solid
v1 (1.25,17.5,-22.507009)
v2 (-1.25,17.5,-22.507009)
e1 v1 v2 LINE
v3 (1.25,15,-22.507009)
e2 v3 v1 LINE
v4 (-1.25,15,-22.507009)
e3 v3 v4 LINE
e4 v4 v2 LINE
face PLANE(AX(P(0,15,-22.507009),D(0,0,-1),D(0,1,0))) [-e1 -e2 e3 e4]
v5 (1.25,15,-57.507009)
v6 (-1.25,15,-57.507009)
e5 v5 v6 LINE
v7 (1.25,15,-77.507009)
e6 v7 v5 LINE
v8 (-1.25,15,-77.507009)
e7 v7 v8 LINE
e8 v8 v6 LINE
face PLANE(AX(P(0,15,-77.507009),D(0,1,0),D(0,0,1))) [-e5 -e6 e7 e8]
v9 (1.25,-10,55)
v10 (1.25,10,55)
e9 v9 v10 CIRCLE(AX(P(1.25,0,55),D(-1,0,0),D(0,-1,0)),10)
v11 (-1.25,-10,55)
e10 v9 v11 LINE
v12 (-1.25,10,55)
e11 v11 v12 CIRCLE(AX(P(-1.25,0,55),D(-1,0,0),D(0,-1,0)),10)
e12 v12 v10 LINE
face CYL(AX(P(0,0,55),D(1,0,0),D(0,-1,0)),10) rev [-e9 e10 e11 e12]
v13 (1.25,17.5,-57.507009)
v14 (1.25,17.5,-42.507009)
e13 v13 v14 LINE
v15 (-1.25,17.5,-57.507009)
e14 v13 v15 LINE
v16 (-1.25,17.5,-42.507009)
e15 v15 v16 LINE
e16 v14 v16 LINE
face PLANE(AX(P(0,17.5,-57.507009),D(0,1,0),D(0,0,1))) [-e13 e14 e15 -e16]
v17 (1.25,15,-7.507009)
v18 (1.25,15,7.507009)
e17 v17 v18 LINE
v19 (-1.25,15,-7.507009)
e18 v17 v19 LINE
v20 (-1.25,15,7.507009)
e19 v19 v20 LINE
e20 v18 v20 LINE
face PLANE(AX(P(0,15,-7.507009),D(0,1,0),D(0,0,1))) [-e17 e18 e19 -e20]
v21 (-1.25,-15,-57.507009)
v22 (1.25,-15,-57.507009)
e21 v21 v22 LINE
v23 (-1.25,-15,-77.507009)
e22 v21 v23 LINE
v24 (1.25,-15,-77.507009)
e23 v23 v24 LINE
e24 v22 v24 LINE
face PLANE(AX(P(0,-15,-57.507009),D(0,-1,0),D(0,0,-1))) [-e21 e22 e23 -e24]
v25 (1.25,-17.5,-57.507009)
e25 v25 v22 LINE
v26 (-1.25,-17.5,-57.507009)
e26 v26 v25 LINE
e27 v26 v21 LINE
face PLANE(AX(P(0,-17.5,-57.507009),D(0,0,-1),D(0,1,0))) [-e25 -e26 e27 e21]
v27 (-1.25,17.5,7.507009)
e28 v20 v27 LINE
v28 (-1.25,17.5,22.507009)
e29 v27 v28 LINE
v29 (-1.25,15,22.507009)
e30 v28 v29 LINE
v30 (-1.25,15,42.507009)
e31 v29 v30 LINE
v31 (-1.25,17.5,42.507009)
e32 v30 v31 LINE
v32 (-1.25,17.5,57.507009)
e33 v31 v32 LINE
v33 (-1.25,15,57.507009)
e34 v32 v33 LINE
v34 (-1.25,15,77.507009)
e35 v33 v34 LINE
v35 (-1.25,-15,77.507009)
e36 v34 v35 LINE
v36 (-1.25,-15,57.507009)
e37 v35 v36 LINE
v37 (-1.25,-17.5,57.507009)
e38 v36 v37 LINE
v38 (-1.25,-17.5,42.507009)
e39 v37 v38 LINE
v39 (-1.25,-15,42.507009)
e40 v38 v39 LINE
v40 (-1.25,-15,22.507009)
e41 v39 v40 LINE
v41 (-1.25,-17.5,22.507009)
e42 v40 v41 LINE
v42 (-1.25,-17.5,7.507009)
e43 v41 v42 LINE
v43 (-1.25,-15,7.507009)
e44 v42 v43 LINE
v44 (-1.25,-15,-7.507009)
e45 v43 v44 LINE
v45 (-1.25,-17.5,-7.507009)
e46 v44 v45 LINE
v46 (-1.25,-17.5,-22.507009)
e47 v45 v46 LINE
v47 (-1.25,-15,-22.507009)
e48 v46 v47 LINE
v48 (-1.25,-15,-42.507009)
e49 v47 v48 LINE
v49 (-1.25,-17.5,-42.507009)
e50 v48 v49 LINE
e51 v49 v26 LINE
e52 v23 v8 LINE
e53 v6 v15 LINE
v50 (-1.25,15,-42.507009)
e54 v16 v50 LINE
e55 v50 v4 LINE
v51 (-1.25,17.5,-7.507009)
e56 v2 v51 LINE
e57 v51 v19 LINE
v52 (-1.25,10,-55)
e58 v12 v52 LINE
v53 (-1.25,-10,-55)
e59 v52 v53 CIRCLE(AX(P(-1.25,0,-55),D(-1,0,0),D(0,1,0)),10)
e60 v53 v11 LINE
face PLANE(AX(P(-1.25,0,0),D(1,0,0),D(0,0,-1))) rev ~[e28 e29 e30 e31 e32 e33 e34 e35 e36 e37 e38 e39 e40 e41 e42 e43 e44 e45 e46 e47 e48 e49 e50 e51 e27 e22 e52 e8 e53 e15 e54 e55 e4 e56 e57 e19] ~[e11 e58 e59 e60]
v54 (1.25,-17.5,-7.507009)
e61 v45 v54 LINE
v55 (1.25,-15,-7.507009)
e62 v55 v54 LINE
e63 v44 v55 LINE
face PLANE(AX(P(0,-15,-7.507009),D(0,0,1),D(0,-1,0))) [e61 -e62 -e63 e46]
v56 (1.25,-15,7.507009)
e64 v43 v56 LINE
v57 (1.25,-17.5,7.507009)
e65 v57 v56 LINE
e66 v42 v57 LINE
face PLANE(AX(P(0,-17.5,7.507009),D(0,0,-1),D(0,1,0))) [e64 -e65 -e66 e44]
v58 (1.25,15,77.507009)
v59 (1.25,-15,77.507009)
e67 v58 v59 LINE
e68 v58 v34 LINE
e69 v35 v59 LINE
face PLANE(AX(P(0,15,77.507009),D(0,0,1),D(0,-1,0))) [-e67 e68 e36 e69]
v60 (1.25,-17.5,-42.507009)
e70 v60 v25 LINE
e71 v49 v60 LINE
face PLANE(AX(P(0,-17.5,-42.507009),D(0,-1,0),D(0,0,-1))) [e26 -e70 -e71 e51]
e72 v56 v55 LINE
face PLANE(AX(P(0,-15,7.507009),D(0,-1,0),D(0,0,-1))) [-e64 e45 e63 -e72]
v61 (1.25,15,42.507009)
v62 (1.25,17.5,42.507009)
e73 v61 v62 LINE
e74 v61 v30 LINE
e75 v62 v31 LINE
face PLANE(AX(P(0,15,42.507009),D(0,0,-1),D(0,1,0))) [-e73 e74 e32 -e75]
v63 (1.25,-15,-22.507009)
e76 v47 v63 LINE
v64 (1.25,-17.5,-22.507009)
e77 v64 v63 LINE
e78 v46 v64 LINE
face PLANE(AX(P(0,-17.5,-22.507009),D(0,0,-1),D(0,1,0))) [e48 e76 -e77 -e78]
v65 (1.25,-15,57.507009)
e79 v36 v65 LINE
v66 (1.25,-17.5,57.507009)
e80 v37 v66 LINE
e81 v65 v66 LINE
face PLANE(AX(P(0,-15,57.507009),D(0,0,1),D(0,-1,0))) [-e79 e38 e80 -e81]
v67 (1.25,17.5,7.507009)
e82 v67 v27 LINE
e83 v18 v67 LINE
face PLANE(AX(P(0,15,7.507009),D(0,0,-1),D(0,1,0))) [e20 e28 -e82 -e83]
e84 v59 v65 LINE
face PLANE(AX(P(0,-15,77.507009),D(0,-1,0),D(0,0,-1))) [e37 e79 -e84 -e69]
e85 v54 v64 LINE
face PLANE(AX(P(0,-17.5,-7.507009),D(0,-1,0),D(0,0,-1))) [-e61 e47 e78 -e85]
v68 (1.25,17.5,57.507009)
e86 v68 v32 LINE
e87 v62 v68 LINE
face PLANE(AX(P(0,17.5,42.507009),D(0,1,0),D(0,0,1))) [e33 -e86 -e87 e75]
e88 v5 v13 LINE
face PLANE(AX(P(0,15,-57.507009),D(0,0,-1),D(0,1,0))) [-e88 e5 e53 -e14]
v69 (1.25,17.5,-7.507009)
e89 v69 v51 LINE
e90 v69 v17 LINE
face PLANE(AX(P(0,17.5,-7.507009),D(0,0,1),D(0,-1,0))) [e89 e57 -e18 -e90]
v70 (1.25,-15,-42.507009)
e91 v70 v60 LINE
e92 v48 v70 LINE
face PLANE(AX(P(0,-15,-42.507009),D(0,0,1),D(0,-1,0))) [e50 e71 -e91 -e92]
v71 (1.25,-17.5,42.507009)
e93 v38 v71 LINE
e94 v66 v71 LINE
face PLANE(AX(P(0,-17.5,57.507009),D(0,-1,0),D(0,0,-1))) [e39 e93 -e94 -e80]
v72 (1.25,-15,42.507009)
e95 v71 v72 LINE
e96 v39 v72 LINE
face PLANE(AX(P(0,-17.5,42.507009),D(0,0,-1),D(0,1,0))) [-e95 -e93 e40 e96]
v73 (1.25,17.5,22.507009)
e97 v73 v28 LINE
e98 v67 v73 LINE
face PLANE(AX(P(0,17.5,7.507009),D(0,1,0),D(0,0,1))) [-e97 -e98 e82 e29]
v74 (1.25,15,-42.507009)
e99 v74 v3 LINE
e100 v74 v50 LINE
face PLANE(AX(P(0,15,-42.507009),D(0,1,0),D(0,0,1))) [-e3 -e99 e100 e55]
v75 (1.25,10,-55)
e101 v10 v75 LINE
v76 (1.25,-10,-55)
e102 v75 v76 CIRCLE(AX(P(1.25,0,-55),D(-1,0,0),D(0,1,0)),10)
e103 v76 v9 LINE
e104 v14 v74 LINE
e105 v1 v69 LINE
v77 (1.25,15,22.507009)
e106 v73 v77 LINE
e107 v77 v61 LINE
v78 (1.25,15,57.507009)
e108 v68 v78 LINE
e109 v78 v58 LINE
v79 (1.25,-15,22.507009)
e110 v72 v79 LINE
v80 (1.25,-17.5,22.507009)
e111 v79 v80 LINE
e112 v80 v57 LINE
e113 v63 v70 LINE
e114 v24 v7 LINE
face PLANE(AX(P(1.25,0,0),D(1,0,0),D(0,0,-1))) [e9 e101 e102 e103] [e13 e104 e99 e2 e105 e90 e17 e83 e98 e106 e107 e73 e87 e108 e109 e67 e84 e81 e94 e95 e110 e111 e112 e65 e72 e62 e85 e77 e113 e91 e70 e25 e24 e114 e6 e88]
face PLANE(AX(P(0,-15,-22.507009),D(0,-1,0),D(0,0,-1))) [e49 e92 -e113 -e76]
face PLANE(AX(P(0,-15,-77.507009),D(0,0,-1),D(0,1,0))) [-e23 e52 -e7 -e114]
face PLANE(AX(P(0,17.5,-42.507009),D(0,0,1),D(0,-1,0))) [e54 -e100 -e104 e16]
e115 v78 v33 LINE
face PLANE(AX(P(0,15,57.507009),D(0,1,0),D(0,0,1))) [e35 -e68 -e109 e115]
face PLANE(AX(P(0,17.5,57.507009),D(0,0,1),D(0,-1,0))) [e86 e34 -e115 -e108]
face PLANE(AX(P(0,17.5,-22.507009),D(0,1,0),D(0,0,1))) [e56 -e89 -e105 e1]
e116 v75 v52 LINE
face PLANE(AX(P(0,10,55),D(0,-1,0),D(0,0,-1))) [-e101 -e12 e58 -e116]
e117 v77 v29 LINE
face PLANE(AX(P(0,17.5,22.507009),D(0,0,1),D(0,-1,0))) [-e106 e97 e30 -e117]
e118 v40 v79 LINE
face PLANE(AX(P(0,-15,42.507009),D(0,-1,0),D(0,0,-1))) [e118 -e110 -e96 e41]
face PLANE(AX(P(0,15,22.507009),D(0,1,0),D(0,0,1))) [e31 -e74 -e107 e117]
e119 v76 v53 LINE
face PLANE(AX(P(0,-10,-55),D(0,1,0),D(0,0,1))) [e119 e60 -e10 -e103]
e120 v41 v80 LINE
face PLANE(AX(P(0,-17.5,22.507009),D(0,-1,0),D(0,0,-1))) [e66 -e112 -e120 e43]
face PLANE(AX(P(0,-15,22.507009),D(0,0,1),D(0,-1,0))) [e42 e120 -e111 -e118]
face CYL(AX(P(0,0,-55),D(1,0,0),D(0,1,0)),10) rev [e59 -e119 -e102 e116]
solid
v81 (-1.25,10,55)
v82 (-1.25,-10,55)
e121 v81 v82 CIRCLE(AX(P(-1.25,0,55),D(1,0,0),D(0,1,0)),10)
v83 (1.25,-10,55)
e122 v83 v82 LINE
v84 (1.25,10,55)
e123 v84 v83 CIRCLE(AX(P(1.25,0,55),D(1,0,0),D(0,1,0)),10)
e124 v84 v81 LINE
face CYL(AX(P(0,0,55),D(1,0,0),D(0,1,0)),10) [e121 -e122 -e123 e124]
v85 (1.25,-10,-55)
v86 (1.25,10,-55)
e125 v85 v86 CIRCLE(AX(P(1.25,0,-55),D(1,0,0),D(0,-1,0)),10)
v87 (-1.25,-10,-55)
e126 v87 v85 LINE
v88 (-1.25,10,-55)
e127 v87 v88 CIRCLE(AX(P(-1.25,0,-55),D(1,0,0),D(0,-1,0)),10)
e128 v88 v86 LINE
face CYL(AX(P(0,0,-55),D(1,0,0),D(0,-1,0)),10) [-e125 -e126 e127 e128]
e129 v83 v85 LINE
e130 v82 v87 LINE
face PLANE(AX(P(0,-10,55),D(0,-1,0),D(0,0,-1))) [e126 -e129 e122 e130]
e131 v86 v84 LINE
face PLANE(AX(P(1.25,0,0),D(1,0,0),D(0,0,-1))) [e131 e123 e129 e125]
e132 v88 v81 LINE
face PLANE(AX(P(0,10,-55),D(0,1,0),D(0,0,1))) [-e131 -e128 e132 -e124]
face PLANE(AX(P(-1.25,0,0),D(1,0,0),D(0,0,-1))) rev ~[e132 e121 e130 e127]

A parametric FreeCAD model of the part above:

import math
import FreeCAD as App
import Part
import Sketcher
from FreeCAD import Vector
Q = App.Units.Quantity


def add_polygon(sketch, points):
    """Adds a closed chain of lines whose ends are joined by coincident constraints."""
    first, n = sketch.GeometryCount, len(points)
    for a, b in zip(points, points[1:] + points[:1]):
        sketch.addGeometry(Part.LineSegment(App.Vector(*a, 0), App.Vector(*b, 0)), False)
    for i in range(n):
        sketch.addConstraint(Sketcher.Constraint("Coincident", first + i, 2, first + (i + 1) % n, 1))

doc = App.newDocument("Part")
body = doc.addObject("PartDesign::Body", "Body")

# Sketch on YZ plane
sketch1 = body.newObject("Sketcher::SketchObject", "Sketch")
sketch1.AttachmentSupport = (doc.getObject("YZ_Plane"), [""])
sketch1.MapMode = "FlatFace"
add_polygon(sketch1, [(15, 77.507009), (-15, 77.507009), (-15, 57.507009), (-17.5, 57.507009), (-17.5, 42.507009), (-15, 42.507009), (-15, 22.507009), (-17.5, 22.507009), (-17.5, 7.507009), (-15, 7.507009), (-15, -7.507009), (-17.5, -7.507009), (-17.5, -22.507009), (-15, -22.507009), (-15, -42.507009), (-17.5, -42.507009), (-17.5, -57.507009), (-15, -57.507009), (-15, -77.507009), (15, -77.507009), (15, -57.507009), (17.5, -57.507009), (17.5, -42.507009), (15, -42.507009), (15, -22.507009), (17.5, -22.507009), (17.5, -7.507009), (15, -7.507009), (15, 7.507009), (17.5, 7.507009), (17.5, 22.507009), (15, 22.507009), (15, 42.507009), (17.5, 42.507009), (17.5, 57.507009), (15, 57.507009)])  # lines 0-35
sketch1.addGeometry(Part.ArcOfCircle(Part.Circle(Vector(0, 55, 0), Vector(0, 0, 1), 10), math.radians(0), math.radians(180)), False)  # 36
sketch1.addGeometry(Part.LineSegment(Vector(10, 55, 0), Vector(10, -55, 0)), False)  # 37
sketch1.addGeometry(Part.ArcOfCircle(Part.Circle(Vector(0, -55, 0), Vector(0, 0, 1), 10), math.radians(180), math.radians(360)), False)  # 38
sketch1.addGeometry(Part.LineSegment(Vector(-10, -55, 0), Vector(-10, 55, 0)), False)  # 39
sketch1.addConstraint([
    Sketcher.Constraint("Tangent", 36, 1, 37, 1),
    Sketcher.Constraint("Tangent", 37, 2, 38, 2),
    Sketcher.Constraint("Tangent", 38, 1, 39, 1),
    Sketcher.Constraint("Tangent", 39, 2, 36, 2),
    Sketcher.Constraint("Horizontal", 0),
    Sketcher.Constraint("Vertical", 1),
    Sketcher.Constraint("Horizontal", 2),
    Sketcher.Constraint("Vertical", 3),
    Sketcher.Constraint("Horizontal", 4),
    Sketcher.Constraint("Vertical", 5),
    Sketcher.Constraint("Horizontal", 6),
    Sketcher.Constraint("Vertical", 7),
    Sketcher.Constraint("Horizontal", 8),
    Sketcher.Constraint("Vertical", 9),
    Sketcher.Constraint("Horizontal", 10),
    Sketcher.Constraint("Vertical", 11),
    Sketcher.Constraint("Horizontal", 12),
    Sketcher.Constraint("Vertical", 13),
    Sketcher.Constraint("Horizontal", 14),
    Sketcher.Constraint("Vertical", 15),
    Sketcher.Constraint("Horizontal", 16),
    Sketcher.Constraint("Vertical", 17),
    Sketcher.Constraint("Horizontal", 18),
    Sketcher.Constraint("Vertical", 19),
    Sketcher.Constraint("Horizontal", 20),
    Sketcher.Constraint("Vertical", 21),
    Sketcher.Constraint("Horizontal", 22),
    Sketcher.Constraint("Vertical", 23),
    Sketcher.Constraint("Horizontal", 24),
    Sketcher.Constraint("Vertical", 25),
    Sketcher.Constraint("Horizontal", 26),
    Sketcher.Constraint("Vertical", 27),
    Sketcher.Constraint("Horizontal", 28),
    Sketcher.Constraint("Vertical", 29),
    Sketcher.Constraint("Horizontal", 30),
    Sketcher.Constraint("Vertical", 31),
    Sketcher.Constraint("Horizontal", 32),
    Sketcher.Constraint("Vertical", 33),
    Sketcher.Constraint("Horizontal", 34),
    Sketcher.Constraint("Vertical", 35),
    Sketcher.Constraint("Vertical", 37),
    Sketcher.Constraint("Vertical", 39),
    Sketcher.Constraint("Symmetric", 36, 3, 38, 3, -1, 1),
    Sketcher.Constraint("Symmetric", 0, 2, 18, 2, -1, 1),
    Sketcher.Constraint("Symmetric", 2, 2, 20, 2, -1, 1),
    Sketcher.Constraint("Symmetric", 4, 2, 22, 2, -1, 1),
    Sketcher.Constraint("Symmetric", 6, 2, 24, 2, -1, 1),
    Sketcher.Constraint("Symmetric", 8, 2, 26, 2, -1, 1),
    Sketcher.Constraint("Symmetric", 10, 2, 28, 2, -1, 1),
    Sketcher.Constraint("Symmetric", 12, 2, 30, 2, -1, 1),
    Sketcher.Constraint("Symmetric", 14, 2, 32, 2, -1, 1),
    Sketcher.Constraint("Symmetric", 16, 2, 34, 2, -1, 1),
    Sketcher.Constraint("Symmetric", 16, 2, 19, 2, -2),
    Sketcher.Constraint("Symmetric", 14, 2, 21, 2, -2),
    Sketcher.Constraint("Symmetric", 12, 2, 23, 2, -2),
    Sketcher.Constraint("Symmetric", 10, 2, 25, 2, -2),
    Sketcher.Constraint("Vertical", 1, 2, 4, 2),
    Sketcher.Constraint("Vertical", 3, 2, 6, 2),
    Sketcher.Constraint("Vertical", 5, 2, 8, 2),
    Sketcher.Constraint("Equal", 1, 5),
    Sketcher.Constraint("Equal", 3, 7),
    Sketcher.Constraint("Radius", 36, Q("10 mm")),
    Sketcher.Constraint("DistanceX", 0, 2, 0, 1, Q("30 mm")),
    Sketcher.Constraint("DistanceY", 1, 2, 1, 1, Q("20 mm")),
    Sketcher.Constraint("DistanceY", 3, 2, 3, 1, Q("15 mm")),
    Sketcher.Constraint("DistanceY", 37, 2, 37, 1, Q("110 mm")),
    Sketcher.Constraint("DistanceX", 2, 2, 2, 1, Q("2.5 mm")),
    Sketcher.Constraint("DistanceY", 9, 2, 9, 1, Q("15.014019 mm")),
])
pad1 = body.newObject("PartDesign::Pad", "Pad")
pad1.Profile = sketch1
pad1.Length = 2.5
pad1.Midplane = True
body2 = doc.addObject("PartDesign::Body", "Body001")

# Sketch on YZ plane
sketch2 = body2.newObject("Sketcher::SketchObject", "Sketch001")
sketch2.AttachmentSupport = (doc.getObject("YZ_Plane001"), [""])
sketch2.MapMode = "FlatFace"
sketch2.addGeometry([
    Part.LineSegment(Vector(-10, 55, 0), Vector(-10, -55, 0)),
    Part.ArcOfCircle(Part.Circle(Vector(0, -55, 0), Vector(0, 0, 1), 10), math.radians(180), math.radians(360)),
    Part.LineSegment(Vector(10, -55, 0), Vector(10, 55, 0)),
    Part.ArcOfCircle(Part.Circle(Vector(0, 55, 0), Vector(0, 0, 1), 10), math.radians(0), math.radians(180)),
], False)
sketch2.addConstraint([
    Sketcher.Constraint("Tangent", 0, 2, 1, 1),
    Sketcher.Constraint("Tangent", 1, 2, 2, 1),
    Sketcher.Constraint("Tangent", 2, 2, 3, 1),
    Sketcher.Constraint("Tangent", 3, 2, 0, 1),
    Sketcher.Constraint("Vertical", 0),
    Sketcher.Constraint("Vertical", 2),
    Sketcher.Constraint("Symmetric", 1, 3, 3, 3, -1, 1),
    Sketcher.Constraint("Radius", 1, Q("10 mm")),
    Sketcher.Constraint("DistanceY", 0, 2, 0, 1, Q("110 mm")),
])
pad2 = body2.newObject("PartDesign::Pad", "Pad001")
pad2.Profile = sketch2
pad2.Length = 2.5
pad2.Midplane = True

doc.recompute()
